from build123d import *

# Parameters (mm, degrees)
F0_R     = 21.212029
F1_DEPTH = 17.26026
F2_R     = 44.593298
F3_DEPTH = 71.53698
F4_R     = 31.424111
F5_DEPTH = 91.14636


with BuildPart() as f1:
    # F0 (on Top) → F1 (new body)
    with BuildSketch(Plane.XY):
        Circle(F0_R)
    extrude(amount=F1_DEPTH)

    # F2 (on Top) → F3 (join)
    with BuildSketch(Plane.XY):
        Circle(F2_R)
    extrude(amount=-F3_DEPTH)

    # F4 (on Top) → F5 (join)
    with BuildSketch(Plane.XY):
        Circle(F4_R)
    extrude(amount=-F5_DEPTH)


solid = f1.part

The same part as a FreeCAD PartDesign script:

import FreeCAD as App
import Part
import Sketcher

V = App.Vector

doc = App.newDocument("Part")
params = doc.addObject("Spreadsheet::Sheet", "Params")
for row, (alias, value) in enumerate([
    ("pad1_length", "17.26026 mm"),
    ("pad2_length", "71.53698 mm"),
    ("pad3_length", "91.14636 mm"),
], start=1):
    params.set(f"A{row}", alias)
    params.set(f"B{row}", "=" + value)
    params.setAlias(f"B{row}", alias)

body = doc.addObject("PartDesign::Body", "Body")

# Sketch on XY plane
sketch1 = doc.addObject("Sketcher::SketchObject", "Sketch")
body.addObject(sketch1)
sketch1.AttachmentSupport = (doc.XY_Plane, [""])
sketch1.MapMode = "FlatFace"
sketch1.addGeometry(Part.Circle(V(0, 0, 0), V(0, 0, 1), 21), False)
sketch1.addConstraint([
    Sketcher.Constraint("Coincident", 0, 3, -1, 1),
    Sketcher.Constraint("Diameter", 0, 42.424058),
])
pad1 = doc.addObject("PartDesign::Pad", "Pad")
body.addObject(pad1)
pad1.Profile = sketch1
pad1.setExpression("Length", "Params.pad1_length")

# Sketch on XY plane
sketch2 = doc.addObject("Sketcher::SketchObject", "Sketch001")
body.addObject(sketch2)
sketch2.AttachmentSupport = (doc.XY_Plane, [""])
sketch2.MapMode = "FlatFace"
sketch2.addGeometry(Part.Circle(V(0, 0, 0), V(0, 0, 1), 45), False)
sketch2.addConstraint([
    Sketcher.Constraint("Coincident", 0, 3, -1, 1),
    Sketcher.Constraint("Diameter", 0, 89.186596),
])
pad2 = doc.addObject("PartDesign::Pad", "Pad001")
body.addObject(pad2)
pad2.Profile = sketch2
pad2.setExpression("Length", "Params.pad2_length")
pad2.Reversed = True

# Sketch on XY plane
sketch3 = doc.addObject("Sketcher::SketchObject", "Sketch002")
body.addObject(sketch3)
sketch3.AttachmentSupport = (doc.XY_Plane, [""])
sketch3.MapMode = "FlatFace"
sketch3.addGeometry(Part.Circle(V(0, 0, 0), V(0, 0, 1), 31), False)
sketch3.addConstraint([
    Sketcher.Constraint("Coincident", 0, 3, -1, 1),
    Sketcher.Constraint("Diameter", 0, 62.848222),
])
pad3 = doc.addObject("PartDesign::Pad", "Pad002")
body.addObject(pad3)
pad3.Profile = sketch3
pad3.setExpression("Length", "Params.pad3_length")
pad3.Reversed = True

doc.recompute()
